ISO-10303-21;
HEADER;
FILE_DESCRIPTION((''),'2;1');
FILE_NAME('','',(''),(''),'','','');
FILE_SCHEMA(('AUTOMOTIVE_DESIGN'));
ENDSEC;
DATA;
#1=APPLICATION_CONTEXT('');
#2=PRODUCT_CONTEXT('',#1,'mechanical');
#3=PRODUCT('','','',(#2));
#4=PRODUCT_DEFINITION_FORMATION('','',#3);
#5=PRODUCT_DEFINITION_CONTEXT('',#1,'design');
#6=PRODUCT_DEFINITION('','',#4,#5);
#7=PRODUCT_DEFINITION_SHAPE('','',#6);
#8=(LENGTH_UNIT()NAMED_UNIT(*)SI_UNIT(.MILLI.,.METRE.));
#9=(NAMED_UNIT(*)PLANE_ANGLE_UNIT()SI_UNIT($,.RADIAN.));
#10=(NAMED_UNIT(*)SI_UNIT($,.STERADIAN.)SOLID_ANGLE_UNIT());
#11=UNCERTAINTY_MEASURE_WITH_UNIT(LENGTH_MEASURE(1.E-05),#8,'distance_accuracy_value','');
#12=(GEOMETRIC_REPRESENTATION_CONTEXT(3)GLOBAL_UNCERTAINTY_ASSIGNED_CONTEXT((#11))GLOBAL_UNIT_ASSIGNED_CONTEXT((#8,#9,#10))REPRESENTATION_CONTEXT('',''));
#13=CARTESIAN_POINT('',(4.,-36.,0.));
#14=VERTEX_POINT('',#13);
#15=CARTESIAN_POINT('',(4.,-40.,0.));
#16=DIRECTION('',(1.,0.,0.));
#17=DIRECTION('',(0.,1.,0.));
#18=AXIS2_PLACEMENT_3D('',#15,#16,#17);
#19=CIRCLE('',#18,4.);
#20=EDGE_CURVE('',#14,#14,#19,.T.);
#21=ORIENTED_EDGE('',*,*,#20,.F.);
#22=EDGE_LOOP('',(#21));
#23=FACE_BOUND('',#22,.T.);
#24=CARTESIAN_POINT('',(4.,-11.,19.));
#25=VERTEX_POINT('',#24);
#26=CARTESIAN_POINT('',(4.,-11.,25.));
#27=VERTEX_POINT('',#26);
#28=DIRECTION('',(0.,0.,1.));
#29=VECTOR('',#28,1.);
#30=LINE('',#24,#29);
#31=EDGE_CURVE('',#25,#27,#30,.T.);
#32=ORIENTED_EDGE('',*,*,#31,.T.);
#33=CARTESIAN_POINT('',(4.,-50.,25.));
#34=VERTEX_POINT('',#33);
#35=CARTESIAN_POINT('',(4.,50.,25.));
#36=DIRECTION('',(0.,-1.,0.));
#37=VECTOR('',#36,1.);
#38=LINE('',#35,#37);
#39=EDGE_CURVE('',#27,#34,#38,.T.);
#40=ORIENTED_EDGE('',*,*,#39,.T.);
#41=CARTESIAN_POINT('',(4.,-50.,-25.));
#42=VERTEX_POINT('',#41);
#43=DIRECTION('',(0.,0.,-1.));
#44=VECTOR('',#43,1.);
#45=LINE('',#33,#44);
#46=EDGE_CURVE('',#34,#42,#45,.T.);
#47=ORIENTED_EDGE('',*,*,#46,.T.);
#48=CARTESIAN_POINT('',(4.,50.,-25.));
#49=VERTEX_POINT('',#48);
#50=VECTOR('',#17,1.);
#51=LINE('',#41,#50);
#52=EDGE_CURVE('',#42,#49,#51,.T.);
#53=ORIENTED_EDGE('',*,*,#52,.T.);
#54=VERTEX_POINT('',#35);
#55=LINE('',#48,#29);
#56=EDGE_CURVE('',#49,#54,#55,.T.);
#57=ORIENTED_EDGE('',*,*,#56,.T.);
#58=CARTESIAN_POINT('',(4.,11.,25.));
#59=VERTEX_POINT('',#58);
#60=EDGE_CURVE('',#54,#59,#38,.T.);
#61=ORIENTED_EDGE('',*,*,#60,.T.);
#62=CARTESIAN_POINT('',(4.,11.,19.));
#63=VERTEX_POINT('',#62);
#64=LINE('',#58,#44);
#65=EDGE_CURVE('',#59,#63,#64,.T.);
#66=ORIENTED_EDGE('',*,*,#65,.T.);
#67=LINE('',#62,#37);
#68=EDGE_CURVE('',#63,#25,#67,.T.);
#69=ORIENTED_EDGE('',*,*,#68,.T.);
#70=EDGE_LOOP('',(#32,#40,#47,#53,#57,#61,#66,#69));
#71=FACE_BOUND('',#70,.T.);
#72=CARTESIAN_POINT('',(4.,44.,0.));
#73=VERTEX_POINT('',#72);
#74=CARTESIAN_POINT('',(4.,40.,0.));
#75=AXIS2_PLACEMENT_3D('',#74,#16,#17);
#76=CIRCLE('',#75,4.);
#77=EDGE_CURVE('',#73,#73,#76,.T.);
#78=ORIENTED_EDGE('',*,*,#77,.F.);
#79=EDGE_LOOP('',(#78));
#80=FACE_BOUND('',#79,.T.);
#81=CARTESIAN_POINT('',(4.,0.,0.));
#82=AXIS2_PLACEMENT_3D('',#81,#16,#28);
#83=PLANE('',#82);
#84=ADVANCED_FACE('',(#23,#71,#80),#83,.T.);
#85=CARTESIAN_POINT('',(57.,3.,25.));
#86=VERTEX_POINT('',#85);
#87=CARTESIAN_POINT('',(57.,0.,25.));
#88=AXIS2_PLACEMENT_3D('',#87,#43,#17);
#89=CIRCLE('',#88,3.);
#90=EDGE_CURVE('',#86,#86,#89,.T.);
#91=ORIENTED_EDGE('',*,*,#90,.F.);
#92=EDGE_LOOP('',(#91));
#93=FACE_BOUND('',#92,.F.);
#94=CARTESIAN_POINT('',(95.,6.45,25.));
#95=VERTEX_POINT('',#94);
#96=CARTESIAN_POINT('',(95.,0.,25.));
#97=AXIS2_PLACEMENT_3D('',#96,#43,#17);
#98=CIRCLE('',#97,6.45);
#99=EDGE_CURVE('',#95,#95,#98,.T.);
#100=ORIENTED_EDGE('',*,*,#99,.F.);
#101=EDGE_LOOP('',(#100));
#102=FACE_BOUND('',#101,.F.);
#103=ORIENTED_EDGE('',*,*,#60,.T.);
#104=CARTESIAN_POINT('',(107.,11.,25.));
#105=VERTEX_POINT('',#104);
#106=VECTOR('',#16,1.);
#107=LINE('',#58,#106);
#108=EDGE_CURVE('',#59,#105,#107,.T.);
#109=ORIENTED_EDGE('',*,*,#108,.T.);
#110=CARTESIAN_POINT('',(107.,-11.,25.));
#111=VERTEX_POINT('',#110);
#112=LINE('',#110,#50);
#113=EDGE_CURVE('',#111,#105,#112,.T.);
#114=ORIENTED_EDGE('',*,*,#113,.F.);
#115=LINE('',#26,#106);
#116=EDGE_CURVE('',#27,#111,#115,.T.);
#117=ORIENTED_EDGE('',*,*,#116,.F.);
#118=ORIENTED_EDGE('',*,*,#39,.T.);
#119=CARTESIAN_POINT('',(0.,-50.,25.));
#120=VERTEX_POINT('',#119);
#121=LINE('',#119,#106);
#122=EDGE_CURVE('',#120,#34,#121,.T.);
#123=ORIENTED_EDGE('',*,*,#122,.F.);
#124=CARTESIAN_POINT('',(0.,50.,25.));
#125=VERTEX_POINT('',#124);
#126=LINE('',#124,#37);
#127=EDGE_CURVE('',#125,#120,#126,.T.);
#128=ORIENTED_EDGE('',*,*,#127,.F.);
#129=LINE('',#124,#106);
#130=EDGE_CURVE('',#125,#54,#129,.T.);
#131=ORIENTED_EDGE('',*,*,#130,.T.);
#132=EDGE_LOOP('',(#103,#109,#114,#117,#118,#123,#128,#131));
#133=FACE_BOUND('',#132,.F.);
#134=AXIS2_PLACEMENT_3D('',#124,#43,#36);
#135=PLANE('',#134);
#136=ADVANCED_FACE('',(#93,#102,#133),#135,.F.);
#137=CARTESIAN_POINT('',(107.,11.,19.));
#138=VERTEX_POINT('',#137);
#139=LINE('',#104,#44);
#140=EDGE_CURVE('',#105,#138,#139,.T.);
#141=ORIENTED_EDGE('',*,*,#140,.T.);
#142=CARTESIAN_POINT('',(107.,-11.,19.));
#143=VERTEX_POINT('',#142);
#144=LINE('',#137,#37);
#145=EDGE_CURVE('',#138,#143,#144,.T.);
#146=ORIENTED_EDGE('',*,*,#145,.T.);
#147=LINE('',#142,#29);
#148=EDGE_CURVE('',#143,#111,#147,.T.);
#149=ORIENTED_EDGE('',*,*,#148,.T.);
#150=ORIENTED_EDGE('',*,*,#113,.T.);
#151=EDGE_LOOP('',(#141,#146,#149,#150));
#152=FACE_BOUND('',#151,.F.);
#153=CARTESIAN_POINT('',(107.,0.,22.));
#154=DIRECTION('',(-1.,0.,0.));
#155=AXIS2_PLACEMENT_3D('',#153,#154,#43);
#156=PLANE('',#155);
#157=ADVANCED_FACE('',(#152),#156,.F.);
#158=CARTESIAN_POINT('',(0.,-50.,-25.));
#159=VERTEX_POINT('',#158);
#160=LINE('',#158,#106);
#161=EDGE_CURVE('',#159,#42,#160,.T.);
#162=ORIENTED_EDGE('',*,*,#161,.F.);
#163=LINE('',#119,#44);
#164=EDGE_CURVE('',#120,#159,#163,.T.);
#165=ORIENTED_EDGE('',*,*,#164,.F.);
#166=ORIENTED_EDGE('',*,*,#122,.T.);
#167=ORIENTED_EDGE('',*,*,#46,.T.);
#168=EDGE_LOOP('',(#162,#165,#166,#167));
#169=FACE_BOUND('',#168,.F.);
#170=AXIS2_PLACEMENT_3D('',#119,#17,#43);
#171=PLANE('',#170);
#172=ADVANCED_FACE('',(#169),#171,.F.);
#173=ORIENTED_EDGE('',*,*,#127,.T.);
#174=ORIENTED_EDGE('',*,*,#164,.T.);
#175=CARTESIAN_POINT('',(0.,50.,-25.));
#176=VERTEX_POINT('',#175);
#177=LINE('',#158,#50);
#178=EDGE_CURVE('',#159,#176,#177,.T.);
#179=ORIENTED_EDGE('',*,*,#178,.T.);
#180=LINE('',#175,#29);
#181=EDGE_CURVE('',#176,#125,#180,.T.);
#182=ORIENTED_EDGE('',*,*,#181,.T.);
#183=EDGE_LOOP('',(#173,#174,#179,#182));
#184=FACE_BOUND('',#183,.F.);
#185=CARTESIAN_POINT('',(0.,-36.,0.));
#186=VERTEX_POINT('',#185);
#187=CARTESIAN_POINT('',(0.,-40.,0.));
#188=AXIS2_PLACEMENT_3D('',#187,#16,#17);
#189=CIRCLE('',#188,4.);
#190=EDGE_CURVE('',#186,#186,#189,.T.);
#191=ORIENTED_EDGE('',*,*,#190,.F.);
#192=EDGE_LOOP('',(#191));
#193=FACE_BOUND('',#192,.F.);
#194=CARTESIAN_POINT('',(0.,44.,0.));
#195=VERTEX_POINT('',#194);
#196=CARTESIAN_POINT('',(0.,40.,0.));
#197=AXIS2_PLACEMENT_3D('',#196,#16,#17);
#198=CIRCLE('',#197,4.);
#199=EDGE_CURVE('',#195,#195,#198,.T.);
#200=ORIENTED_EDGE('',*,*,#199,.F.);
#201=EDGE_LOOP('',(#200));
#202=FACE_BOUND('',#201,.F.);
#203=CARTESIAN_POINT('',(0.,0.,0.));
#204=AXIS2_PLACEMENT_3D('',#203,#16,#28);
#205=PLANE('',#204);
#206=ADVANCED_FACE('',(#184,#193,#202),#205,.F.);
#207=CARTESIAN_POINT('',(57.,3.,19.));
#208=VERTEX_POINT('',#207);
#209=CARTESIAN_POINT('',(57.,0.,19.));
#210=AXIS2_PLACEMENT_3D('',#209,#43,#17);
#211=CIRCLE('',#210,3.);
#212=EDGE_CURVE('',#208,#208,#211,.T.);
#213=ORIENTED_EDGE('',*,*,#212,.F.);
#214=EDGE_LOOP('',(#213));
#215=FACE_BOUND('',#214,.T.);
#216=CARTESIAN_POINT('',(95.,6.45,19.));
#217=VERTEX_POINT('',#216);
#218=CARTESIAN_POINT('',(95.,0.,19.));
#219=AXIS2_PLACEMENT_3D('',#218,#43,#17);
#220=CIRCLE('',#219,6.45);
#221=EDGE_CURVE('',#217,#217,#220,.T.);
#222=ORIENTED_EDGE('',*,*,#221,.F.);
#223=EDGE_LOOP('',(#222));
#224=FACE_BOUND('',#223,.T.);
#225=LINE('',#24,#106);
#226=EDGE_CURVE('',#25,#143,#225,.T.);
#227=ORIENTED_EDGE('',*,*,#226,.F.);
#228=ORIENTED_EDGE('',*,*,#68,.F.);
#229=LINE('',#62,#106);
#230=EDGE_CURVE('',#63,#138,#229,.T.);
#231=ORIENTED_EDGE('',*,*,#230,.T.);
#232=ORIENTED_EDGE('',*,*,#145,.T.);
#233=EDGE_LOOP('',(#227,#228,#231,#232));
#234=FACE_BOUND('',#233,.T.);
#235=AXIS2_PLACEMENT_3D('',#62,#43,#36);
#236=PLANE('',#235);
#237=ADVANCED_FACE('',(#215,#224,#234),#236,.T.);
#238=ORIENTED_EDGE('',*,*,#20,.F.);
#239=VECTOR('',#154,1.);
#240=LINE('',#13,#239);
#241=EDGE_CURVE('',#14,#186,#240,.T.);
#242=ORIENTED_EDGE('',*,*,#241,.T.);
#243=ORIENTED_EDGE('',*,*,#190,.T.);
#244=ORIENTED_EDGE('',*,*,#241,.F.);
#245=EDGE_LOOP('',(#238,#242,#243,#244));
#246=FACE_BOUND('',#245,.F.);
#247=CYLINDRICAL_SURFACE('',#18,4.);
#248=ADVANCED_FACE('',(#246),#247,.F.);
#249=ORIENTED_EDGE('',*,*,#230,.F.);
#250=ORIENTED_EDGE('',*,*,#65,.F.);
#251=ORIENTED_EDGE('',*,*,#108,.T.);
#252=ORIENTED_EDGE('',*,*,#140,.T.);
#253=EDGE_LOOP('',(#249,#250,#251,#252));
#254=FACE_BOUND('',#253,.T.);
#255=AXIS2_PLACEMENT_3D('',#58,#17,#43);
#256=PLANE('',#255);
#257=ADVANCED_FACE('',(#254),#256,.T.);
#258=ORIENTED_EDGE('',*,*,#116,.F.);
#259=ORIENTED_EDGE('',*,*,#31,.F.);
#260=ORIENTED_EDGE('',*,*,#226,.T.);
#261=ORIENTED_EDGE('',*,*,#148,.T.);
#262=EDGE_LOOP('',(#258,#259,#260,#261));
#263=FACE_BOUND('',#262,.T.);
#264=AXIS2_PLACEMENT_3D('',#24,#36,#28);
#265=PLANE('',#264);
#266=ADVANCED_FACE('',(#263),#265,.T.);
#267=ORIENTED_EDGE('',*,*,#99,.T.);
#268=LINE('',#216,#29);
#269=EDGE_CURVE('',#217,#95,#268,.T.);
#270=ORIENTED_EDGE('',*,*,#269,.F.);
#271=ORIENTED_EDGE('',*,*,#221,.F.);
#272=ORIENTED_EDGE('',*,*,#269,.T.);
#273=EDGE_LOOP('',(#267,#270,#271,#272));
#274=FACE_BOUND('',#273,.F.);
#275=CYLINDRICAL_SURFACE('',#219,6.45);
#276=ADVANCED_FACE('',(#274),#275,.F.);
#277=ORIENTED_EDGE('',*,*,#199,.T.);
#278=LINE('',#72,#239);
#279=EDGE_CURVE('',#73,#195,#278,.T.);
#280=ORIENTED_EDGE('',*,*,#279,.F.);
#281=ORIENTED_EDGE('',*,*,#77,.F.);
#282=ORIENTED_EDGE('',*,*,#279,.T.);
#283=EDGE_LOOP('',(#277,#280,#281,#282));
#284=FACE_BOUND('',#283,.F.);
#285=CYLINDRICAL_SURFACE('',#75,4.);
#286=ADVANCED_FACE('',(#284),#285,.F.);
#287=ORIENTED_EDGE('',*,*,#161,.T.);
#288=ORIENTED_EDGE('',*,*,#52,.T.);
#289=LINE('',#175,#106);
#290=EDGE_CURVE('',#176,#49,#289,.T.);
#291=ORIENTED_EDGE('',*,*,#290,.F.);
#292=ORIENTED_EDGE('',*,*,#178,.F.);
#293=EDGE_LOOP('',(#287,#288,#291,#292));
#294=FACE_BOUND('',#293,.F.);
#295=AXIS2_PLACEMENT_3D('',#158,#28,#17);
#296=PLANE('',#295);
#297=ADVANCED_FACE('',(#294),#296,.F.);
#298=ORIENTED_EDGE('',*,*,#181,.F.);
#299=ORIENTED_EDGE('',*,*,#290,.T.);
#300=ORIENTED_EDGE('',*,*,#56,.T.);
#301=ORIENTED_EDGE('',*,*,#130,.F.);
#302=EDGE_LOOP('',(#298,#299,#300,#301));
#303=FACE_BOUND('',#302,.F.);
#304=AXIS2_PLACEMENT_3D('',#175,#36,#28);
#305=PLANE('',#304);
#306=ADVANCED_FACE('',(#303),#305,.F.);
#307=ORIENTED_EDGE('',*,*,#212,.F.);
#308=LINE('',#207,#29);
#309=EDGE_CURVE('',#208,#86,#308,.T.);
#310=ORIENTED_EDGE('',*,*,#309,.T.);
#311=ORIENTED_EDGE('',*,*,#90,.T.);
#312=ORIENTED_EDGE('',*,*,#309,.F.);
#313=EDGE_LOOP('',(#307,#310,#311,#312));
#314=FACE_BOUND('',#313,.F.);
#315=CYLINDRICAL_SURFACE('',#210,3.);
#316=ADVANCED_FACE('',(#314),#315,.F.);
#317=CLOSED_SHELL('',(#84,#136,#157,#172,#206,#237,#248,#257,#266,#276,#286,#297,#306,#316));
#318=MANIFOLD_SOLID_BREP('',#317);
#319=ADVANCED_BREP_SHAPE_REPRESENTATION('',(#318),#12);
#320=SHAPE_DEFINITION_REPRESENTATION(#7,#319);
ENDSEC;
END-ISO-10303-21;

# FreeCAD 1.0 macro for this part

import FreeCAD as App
import Part
import Sketcher

doc = App.newDocument("Part")
body = doc.addObject("PartDesign::Body", "Body")

# Sketch on YZ plane
sketch1 = doc.addObject("Sketcher::SketchObject", "Sketch")
body.addObject(sketch1)
sketch1.AttachmentSupport = (doc.YZ_Plane, [""])
sketch1.MapMode = "FlatFace"
sketch1.addGeometry(Part.LineSegment(App.Vector(50, 25, 0), App.Vector(-50, 25, 0)), False)
sketch1.addGeometry(Part.LineSegment(App.Vector(-50, 25, 0), App.Vector(-50, -25, 0)), False)
sketch1.addGeometry(Part.LineSegment(App.Vector(-50, -25, 0), App.Vector(50, -25, 0)), False)
sketch1.addGeometry(Part.LineSegment(App.Vector(50, -25, 0), App.Vector(50, 25, 0)), False)
sketch1.addConstraint(Sketcher.Constraint("Coincident", 0, 2, 1, 1))
sketch1.addConstraint(Sketcher.Constraint("Coincident", 1, 2, 2, 1))
sketch1.addConstraint(Sketcher.Constraint("Coincident", 2, 2, 3, 1))
sketch1.addConstraint(Sketcher.Constraint("Coincident", 3, 2, 0, 1))
sketch1.addConstraint(Sketcher.Constraint("Horizontal", 0))
sketch1.addConstraint(Sketcher.Constraint("Vertical", 1))
sketch1.addConstraint(Sketcher.Constraint("Horizontal", 2))
sketch1.addConstraint(Sketcher.Constraint("Vertical", 3))
sketch1.addConstraint(Sketcher.Constraint("Symmetric", 0, 2, 2, 2, -1, 1))
sketch1.addConstraint(Sketcher.Constraint("DistanceX", 0, 2, 0, 1, 100.0))
sketch1.addConstraint(Sketcher.Constraint("DistanceY", 1, 2, 1, 1, 50.0))
pad1 = doc.addObject("PartDesign::Pad", "Pad")
body.addObject(pad1)
pad1.Profile = sketch1
pad1.Length = 4

# Sketch on YZ plane
sketch2 = doc.addObject("Sketcher::SketchObject", "Sketch001")
body.addObject(sketch2)
sketch2.AttachmentSupport = (doc.YZ_Plane, [""])
sketch2.MapMode = "FlatFace"
sketch2.AttachmentOffset = App.Placement(App.Vector(0, 0, 4), App.Rotation())
sketch2.addGeometry(Part.LineSegment(App.Vector(-11, 19, 0), App.Vector(11, 19, 0)), False)
sketch2.addGeometry(Part.LineSegment(App.Vector(11, 19, 0), App.Vector(11, 25, 0)), False)
sketch2.addGeometry(Part.LineSegment(App.Vector(11, 25, 0), App.Vector(-11, 25, 0)), False)
sketch2.addGeometry(Part.LineSegment(App.Vector(-11, 25, 0), App.Vector(-11, 19, 0)), False)
sketch2.addConstraint(Sketcher.Constraint("Coincident", 0, 2, 1, 1))
sketch2.addConstraint(Sketcher.Constraint("Coincident", 1, 2, 2, 1))
sketch2.addConstraint(Sketcher.Constraint("Coincident", 2, 2, 3, 1))
sketch2.addConstraint(Sketcher.Constraint("Coincident", 3, 2, 0, 1))
sketch2.addConstraint(Sketcher.Constraint("Horizontal", 0))
sketch2.addConstraint(Sketcher.Constraint("Vertical", 1))
sketch2.addConstraint(Sketcher.Constraint("Horizontal", 2))
sketch2.addConstraint(Sketcher.Constraint("Vertical", 3))
sketch2.addConstraint(Sketcher.Constraint("DistanceX", 0, 1, 0, 2, 22.0))
sketch2.addConstraint(Sketcher.Constraint("DistanceY", 1, 1, 1, 2, 6.0))
sketch2.addConstraint(Sketcher.Constraint("DistanceX", -1, 1, 0, 2, 11.0))
sketch2.addConstraint(Sketcher.Constraint("DistanceY", -1, 1, 0, 2, 19.0))
pad2 = doc.addObject("PartDesign::Pad", "Pad001")
body.addObject(pad2)
pad2.Profile = sketch2
pad2.Length = 103

# Sketch on XY plane
sketch3 = doc.addObject("Sketcher::SketchObject", "Sketch002")
body.addObject(sketch3)
sketch3.AttachmentSupport = (doc.XY_Plane, [""])
sketch3.MapMode = "FlatFace"
sketch3.AttachmentOffset = App.Placement(App.Vector(0, 0, 19), App.Rotation())
sketch3.addGeometry(Part.Circle(App.Vector(95, 0, 0), App.Vector(0, 0, 1), 6.45), False)
sketch3.addGeometry(Part.Circle(App.Vector(57, 0, 0), App.Vector(0, 0, 1), 3), False)
sketch3.addConstraint(Sketcher.Constraint("PointOnObject", 0, 3, -1))
sketch3.addConstraint(Sketcher.Constraint("PointOnObject", 1, 3, -1))
sketch3.addConstraint(Sketcher.Constraint("Diameter", 1, 6.0))
sketch3.addConstraint(Sketcher.Constraint("Diameter", 0, 12.9))
sketch3.addConstraint(Sketcher.Constraint("DistanceX", -1, 1, 0, 3, 95.0))
sketch3.addConstraint(Sketcher.Constraint("DistanceX", -1, 1, 1, 3, 57.0))
pocket1 = doc.addObject("PartDesign::Pocket", "Pocket")
body.addObject(pocket1)
pocket1.Profile = sketch3
pocket1.Length = 28.1055
pocket1.Reversed = True

# Sketch on YZ plane
sketch4 = doc.addObject("Sketcher::SketchObject", "Sketch003")
body.addObject(sketch4)
sketch4.AttachmentSupport = (doc.YZ_Plane, [""])
sketch4.MapMode = "FlatFace"
sketch4.AttachmentOffset = App.Placement(App.Vector(0, 0, 4), App.Rotation())
sketch4.addGeometry(Part.Circle(App.Vector(-40, 0, 0), App.Vector(0, 0, 1), 4), False)
sketch4.addGeometry(Part.Circle(App.Vector(40, 0, 0), App.Vector(0, 0, 1), 4), False)
sketch4.addConstraint(Sketcher.Constraint("Equal", 0, 1))
sketch4.addConstraint(Sketcher.Constraint("Symmetric", 0, 3, 1, 3, -1, 1))
sketch4.addConstraint(Sketcher.Constraint("PointOnObject", 0, 3, -1))
sketch4.addConstraint(Sketcher.Constraint("Diameter", 0, 8.0))
sketch4.addConstraint(Sketcher.Constraint("DistanceX", 0, 3, -1, 1, 40.0))
pocket2 = doc.addObject("PartDesign::Pocket", "Pocket001")
body.addObject(pocket2)
pocket2.Profile = sketch4
pocket2.Type = "UpToFirst"

doc.recompute()
